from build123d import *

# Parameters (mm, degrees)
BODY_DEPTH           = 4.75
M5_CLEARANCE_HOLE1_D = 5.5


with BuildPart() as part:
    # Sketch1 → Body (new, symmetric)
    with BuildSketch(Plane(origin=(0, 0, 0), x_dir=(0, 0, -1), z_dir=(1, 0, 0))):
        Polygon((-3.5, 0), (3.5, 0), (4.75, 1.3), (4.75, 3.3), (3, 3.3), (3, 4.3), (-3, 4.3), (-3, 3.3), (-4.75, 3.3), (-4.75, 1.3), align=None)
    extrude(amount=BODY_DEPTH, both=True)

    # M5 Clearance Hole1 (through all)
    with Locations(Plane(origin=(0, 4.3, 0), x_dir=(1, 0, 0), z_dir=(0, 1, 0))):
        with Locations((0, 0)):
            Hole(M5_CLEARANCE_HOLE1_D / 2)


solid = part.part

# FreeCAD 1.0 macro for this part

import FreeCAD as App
import Part
import Sketcher
Q = App.Units.Quantity

doc = App.newDocument("Part")
body = doc.addObject("PartDesign::Body", "Body")

sketch1 = doc.addObject("Sketcher::SketchObject", "Sketch")
body.addObject(sketch1)
sketch1.AttachmentSupport = (doc.YZ_Plane, [""])
sketch1.MapMode = "FlatFace"
sketch1.addGeometry([
    Part.LineSegment(App.Vector(0, 3.5, 0), App.Vector(0, -3.5, 0)),
    Part.LineSegment(App.Vector(0, -3.5, 0), App.Vector(1.3, -4.8, 0)),
    Part.LineSegment(App.Vector(1.3, -4.8, 0), App.Vector(3.3, -4.8, 0)),
    Part.LineSegment(App.Vector(3.3, -4.8, 0), App.Vector(3.3, -3, 0)),
    Part.LineSegment(App.Vector(3.3, -3, 0), App.Vector(4.3, -3, 0)),
    Part.LineSegment(App.Vector(4.3, -3, 0), App.Vector(4.3, 3, 0)),
    Part.LineSegment(App.Vector(4.3, 3, 0), App.Vector(3.3, 3, 0)),
    Part.LineSegment(App.Vector(3.3, 3, 0), App.Vector(3.3, 4.8, 0)),
    Part.LineSegment(App.Vector(3.3, 4.8, 0), App.Vector(1.3, 4.8, 0)),
    Part.LineSegment(App.Vector(1.3, 4.8, 0), App.Vector(0, 3.5, 0)),
], False)
sketch1.addConstraint([
    Sketcher.Constraint("Coincident", 0, 2, 1, 1),
    Sketcher.Constraint("Coincident", 1, 2, 2, 1),
    Sketcher.Constraint("Coincident", 2, 2, 3, 1),
    Sketcher.Constraint("Coincident", 3, 2, 4, 1),
    Sketcher.Constraint("Coincident", 4, 2, 5, 1),
    Sketcher.Constraint("Coincident", 5, 2, 6, 1),
    Sketcher.Constraint("Coincident", 6, 2, 7, 1),
    Sketcher.Constraint("Coincident", 7, 2, 8, 1),
    Sketcher.Constraint("Coincident", 8, 2, 9, 1),
    Sketcher.Constraint("Coincident", 9, 2, 0, 1),
    Sketcher.Constraint("Vertical", 0),
    Sketcher.Constraint("Horizontal", 2),
    Sketcher.Constraint("Vertical", 3),
    Sketcher.Constraint("Horizontal", 4),
    Sketcher.Constraint("Vertical", 5),
    Sketcher.Constraint("Horizontal", 6),
    Sketcher.Constraint("Vertical", 7),
    Sketcher.Constraint("Horizontal", 8),
    Sketcher.Constraint("Symmetric", 0, 2, 9, 2, -1, 1),
    Sketcher.Constraint("Symmetric", 3, 2, 6, 2, -1),
    Sketcher.Constraint("Symmetric", 1, 2, 8, 2, -1),
    Sketcher.Constraint("DistanceX", 2, 1, 2, 2, Q("2 mm")),
    Sketcher.Constraint("DistanceX", 4, 1, 4, 2, Q("1 mm")),
    Sketcher.Constraint("DistanceY", 0, 2, 0, 1, Q("7 mm")),
    Sketcher.Constraint("DistanceY", 5, 1, 5, 2, Q("6 mm")),
    Sketcher.Constraint("DistanceY", 3, 1, 3, 2, Q("1.75 mm")),
    Sketcher.Constraint("DistanceX", -1, 1, 1, 2, Q("1.3 mm")),
])
pad1 = doc.addObject("PartDesign::Pad", "Pad")
body.addObject(pad1)
pad1.Profile = sketch1
pad1.Length = 9.5
pad1.Midplane = True

sketch2 = doc.addObject("Sketcher::SketchObject", "Sketch001")
body.addObject(sketch2)
sketch2.AttachmentSupport = (doc.XZ_Plane, [""])
sketch2.MapMode = "FlatFace"
sketch2.AttachmentOffset = App.Placement(App.Vector(0, 0, -4.3), App.Rotation())
sketch2.addGeometry(Part.Circle(App.Vector(0, 0, 0), App.Vector(0, 0, 1), 2.8), False)
sketch2.addConstraint([
    Sketcher.Constraint("Coincident", 0, 3, -1, 1),
    Sketcher.Constraint("Diameter", 0, Q("5.5 mm")),
])
doc.recompute()
hole = doc.addObject("PartDesign::Hole", "Hole")
body.addObject(hole)
hole.Profile = sketch2
hole.ThreadType = "None"
hole.Diameter = 5.5
hole.DepthType = "ThroughAll"
hole.Reversed = True

doc.recompute()
